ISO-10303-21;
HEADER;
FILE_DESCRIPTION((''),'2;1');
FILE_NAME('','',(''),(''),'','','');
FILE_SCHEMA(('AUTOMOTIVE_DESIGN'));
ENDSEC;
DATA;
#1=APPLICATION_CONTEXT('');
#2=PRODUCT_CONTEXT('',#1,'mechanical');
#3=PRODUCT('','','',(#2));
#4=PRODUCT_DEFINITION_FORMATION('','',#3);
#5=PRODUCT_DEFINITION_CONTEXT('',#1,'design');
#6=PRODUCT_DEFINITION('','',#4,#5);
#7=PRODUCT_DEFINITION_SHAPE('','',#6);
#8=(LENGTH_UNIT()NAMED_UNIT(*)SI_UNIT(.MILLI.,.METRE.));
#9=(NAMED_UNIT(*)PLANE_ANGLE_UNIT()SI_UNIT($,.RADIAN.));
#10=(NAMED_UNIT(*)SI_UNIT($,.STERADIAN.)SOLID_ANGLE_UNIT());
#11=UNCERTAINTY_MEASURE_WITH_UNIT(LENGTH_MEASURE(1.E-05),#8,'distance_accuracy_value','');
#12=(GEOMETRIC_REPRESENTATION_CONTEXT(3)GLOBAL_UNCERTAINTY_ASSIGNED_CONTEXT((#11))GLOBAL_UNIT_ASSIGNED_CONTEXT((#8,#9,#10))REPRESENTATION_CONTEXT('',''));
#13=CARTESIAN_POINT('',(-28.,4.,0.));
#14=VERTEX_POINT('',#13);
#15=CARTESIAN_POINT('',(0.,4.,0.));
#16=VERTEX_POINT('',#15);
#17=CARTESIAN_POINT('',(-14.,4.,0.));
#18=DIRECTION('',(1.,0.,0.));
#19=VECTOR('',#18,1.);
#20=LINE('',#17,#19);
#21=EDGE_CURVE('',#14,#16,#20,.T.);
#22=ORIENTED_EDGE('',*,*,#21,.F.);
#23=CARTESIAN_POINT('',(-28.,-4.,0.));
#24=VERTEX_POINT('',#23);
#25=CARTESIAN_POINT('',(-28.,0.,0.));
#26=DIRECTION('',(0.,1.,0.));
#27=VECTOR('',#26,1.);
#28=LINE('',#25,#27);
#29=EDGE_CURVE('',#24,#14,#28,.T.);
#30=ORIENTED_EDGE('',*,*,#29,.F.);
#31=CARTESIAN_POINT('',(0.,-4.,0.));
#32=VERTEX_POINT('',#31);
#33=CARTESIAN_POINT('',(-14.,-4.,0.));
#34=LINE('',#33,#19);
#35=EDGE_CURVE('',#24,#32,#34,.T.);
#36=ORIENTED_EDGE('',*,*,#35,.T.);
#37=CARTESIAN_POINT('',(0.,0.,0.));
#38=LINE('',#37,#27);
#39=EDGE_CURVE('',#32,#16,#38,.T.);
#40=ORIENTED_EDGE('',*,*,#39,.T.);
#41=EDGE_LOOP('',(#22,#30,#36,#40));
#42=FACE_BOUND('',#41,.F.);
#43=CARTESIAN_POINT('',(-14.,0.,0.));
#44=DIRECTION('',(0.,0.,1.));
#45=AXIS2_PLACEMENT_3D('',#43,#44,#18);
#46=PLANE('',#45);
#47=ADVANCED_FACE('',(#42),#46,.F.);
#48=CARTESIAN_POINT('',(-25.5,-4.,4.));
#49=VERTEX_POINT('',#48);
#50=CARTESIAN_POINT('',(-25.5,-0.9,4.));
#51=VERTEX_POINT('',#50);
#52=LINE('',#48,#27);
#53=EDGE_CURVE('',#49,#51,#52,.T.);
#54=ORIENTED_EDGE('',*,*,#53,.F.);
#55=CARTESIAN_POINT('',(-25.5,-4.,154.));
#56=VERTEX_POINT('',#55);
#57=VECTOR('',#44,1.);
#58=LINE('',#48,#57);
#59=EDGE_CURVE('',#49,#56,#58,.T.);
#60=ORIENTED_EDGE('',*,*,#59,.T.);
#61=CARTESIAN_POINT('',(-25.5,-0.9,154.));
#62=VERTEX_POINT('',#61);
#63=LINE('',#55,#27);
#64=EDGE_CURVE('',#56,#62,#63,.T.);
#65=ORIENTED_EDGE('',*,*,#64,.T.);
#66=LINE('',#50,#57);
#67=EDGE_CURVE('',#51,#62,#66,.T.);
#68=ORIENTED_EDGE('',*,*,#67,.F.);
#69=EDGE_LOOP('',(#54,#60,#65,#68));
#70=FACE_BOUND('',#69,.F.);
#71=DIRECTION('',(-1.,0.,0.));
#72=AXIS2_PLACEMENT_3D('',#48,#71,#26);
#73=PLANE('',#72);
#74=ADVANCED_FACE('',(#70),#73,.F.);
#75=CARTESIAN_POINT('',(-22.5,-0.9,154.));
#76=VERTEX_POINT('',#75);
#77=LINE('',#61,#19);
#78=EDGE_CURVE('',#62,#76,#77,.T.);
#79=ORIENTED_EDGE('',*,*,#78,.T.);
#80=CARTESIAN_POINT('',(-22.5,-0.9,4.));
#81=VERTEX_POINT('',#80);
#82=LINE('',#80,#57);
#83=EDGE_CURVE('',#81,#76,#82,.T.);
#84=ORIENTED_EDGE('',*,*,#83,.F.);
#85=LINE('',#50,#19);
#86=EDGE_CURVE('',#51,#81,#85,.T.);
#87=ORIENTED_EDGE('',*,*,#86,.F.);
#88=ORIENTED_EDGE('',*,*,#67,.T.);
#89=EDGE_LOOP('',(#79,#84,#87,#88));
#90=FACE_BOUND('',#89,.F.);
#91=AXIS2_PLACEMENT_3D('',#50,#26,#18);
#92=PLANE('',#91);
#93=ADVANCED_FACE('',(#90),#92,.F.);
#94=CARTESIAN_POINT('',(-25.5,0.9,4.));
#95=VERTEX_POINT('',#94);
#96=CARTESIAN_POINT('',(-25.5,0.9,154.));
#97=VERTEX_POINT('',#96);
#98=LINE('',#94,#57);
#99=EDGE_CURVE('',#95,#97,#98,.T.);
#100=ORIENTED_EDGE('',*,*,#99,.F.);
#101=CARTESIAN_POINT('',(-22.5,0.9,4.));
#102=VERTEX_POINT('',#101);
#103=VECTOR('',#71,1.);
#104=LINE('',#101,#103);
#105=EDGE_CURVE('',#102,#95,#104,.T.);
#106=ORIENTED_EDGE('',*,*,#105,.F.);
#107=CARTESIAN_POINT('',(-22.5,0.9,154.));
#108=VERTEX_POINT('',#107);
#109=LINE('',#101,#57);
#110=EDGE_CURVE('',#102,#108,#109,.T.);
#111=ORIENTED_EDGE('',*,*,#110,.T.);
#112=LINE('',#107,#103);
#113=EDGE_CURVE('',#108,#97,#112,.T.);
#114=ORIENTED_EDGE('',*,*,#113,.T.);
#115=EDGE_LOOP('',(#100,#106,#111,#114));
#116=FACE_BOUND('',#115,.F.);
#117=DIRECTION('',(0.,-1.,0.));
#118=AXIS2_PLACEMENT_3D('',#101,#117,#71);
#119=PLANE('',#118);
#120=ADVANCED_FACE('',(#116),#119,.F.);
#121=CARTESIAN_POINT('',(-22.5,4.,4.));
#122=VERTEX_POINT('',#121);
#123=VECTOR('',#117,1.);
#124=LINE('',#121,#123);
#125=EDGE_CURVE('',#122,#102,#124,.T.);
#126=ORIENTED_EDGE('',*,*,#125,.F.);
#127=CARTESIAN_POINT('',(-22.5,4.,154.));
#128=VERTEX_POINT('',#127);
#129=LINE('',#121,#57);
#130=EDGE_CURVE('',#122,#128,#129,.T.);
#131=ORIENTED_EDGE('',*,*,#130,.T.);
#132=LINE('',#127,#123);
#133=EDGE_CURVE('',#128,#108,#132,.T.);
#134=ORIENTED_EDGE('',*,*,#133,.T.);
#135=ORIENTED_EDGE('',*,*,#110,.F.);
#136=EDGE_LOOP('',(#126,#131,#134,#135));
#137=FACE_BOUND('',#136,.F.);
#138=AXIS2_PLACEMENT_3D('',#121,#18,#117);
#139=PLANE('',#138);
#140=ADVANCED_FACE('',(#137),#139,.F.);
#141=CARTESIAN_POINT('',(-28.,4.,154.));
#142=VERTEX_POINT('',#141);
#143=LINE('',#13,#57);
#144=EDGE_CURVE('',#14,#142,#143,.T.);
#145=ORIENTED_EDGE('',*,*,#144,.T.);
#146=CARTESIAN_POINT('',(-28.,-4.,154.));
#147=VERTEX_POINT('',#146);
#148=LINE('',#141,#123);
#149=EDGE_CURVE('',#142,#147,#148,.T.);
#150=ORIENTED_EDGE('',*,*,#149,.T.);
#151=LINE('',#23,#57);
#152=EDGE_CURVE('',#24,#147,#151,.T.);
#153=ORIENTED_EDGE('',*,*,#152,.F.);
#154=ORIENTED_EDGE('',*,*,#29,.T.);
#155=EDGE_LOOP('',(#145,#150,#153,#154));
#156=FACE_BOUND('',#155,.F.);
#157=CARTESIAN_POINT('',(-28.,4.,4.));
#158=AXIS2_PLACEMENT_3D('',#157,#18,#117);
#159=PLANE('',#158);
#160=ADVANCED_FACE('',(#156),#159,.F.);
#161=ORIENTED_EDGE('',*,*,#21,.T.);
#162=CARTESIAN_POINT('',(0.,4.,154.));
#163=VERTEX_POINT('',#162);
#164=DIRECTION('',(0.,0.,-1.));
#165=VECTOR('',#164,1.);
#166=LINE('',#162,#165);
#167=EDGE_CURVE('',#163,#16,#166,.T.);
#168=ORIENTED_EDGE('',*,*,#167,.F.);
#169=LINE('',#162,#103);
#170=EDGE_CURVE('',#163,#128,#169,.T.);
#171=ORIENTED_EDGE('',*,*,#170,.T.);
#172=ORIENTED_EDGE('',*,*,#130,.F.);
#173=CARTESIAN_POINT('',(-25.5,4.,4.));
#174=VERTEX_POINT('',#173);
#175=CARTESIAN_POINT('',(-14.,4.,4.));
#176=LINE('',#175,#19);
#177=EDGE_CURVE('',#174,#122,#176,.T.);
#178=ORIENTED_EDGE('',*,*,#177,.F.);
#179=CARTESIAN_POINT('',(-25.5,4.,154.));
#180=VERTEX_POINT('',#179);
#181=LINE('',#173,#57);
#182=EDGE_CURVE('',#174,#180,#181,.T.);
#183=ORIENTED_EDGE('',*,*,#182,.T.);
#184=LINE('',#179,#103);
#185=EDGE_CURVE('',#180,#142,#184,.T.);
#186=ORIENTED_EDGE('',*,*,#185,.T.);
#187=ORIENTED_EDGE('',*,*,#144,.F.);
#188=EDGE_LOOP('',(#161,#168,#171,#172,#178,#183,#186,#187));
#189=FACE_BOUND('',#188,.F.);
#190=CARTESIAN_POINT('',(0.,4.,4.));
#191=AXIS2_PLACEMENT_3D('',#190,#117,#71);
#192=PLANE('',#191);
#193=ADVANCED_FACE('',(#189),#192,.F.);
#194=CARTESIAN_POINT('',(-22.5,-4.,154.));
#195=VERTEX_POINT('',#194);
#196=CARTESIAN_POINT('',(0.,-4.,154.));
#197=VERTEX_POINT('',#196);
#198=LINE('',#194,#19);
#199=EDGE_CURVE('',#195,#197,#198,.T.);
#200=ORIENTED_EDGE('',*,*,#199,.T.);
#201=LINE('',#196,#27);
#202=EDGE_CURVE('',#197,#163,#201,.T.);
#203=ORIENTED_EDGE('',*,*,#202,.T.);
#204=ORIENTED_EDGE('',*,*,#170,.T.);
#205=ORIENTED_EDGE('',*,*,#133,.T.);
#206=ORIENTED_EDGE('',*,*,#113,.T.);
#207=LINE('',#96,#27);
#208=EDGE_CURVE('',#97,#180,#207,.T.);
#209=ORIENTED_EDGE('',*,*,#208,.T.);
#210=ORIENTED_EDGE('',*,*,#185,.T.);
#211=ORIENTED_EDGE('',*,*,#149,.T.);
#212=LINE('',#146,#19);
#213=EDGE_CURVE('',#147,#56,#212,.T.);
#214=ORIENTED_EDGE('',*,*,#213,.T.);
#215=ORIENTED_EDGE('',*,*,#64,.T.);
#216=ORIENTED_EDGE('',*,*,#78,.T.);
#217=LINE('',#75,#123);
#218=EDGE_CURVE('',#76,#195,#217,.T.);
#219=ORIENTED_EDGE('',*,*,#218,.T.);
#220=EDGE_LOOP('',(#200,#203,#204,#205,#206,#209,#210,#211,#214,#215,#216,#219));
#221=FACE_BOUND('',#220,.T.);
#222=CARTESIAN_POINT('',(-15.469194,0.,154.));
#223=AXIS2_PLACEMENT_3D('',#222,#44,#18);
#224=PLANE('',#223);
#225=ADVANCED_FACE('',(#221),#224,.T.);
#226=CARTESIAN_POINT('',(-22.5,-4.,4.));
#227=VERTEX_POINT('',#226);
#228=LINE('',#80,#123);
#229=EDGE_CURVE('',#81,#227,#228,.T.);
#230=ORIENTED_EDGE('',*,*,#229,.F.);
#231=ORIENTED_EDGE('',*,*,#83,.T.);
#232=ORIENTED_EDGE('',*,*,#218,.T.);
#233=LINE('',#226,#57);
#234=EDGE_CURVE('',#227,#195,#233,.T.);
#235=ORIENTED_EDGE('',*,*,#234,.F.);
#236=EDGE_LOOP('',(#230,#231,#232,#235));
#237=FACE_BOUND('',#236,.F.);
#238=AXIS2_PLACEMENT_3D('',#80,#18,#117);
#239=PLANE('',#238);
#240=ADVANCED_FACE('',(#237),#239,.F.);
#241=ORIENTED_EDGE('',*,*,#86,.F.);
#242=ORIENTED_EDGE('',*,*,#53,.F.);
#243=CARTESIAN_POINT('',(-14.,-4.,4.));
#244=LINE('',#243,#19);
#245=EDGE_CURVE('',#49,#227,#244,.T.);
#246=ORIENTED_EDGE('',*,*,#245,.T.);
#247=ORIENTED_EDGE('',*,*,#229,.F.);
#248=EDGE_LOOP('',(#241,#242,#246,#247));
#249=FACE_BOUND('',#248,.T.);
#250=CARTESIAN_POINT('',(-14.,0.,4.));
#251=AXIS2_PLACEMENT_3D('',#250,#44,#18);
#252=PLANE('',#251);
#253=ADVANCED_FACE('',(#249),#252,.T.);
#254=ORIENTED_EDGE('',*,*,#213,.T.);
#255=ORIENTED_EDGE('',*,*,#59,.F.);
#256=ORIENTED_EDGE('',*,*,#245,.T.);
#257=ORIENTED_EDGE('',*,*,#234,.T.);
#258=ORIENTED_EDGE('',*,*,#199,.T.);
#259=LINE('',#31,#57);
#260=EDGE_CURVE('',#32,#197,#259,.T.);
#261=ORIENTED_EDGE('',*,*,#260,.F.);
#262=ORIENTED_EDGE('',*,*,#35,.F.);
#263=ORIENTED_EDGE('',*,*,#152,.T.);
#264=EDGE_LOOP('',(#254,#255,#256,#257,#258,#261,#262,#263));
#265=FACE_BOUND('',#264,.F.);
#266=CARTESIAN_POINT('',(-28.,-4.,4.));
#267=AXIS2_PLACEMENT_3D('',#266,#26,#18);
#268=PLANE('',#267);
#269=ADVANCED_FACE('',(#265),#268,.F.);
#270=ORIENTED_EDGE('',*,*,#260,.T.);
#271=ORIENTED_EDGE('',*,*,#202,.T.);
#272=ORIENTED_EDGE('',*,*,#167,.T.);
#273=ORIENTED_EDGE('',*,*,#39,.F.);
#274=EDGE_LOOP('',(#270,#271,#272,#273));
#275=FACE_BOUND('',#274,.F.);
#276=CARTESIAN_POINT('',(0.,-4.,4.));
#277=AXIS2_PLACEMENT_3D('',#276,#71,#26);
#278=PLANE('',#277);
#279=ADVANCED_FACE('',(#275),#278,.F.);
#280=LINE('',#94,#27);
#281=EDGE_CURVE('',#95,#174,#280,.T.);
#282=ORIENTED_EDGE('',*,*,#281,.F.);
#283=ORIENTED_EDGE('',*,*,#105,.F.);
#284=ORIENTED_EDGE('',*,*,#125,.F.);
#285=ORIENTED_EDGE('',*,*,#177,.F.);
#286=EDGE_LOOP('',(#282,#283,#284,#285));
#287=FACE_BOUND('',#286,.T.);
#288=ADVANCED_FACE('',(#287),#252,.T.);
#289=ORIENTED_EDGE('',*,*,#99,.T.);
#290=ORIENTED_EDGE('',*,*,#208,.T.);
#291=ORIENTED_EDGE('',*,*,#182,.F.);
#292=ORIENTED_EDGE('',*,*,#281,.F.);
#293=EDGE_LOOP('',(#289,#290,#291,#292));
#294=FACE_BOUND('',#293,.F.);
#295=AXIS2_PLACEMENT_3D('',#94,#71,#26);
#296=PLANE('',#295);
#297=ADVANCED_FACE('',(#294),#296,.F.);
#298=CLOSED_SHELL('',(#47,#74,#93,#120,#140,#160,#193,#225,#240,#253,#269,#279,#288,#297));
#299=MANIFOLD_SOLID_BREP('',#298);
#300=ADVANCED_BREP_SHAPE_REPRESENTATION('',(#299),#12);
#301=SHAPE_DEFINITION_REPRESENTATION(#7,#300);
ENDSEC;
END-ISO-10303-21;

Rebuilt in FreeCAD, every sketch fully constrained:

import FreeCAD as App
import Part
import Sketcher

V = App.Vector
Q = App.Units.Quantity

doc = App.newDocument("Part")
body = doc.addObject("PartDesign::Body", "Body")

sketch1 = doc.addObject("Sketcher::SketchObject", "Sketch")
body.addObject(sketch1)
sketch1.AttachmentSupport = (doc.XY_Plane, [""])
sketch1.MapMode = "FlatFace"
sketch1.addGeometry([
    Part.LineSegment(V(-28, 4, 0), V(-28, -4, 0)),
    Part.LineSegment(V(-28, -4, 0), V(0, -4, 0)),
    Part.LineSegment(V(0, -4, 0), V(0, 4, 0)),
    Part.LineSegment(V(0, 4, 0), V(-28, 4, 0)),
], False)
sketch1.addConstraint([
    Sketcher.Constraint("Coincident", 0, 2, 1, 1),
    Sketcher.Constraint("Coincident", 1, 2, 2, 1),
    Sketcher.Constraint("Coincident", 2, 2, 3, 1),
    Sketcher.Constraint("Coincident", 3, 2, 0, 1),
    Sketcher.Constraint("Vertical", 0),
    Sketcher.Constraint("Horizontal", 1),
    Sketcher.Constraint("Vertical", 2),
    Sketcher.Constraint("Horizontal", 3),
    Sketcher.Constraint("Symmetric", 1, 2, 2, 2, -1, 1),
    Sketcher.Constraint("DistanceX", 1, 1, 1, 2, Q("28 mm")),
    Sketcher.Constraint("DistanceY", 0, 2, 0, 1, Q("8 mm")),
])
pad1 = doc.addObject("PartDesign::Pad", "Pad")
body.addObject(pad1)
pad1.Profile = sketch1
pad1.Length = 4

sketch2 = doc.addObject("Sketcher::SketchObject", "Sketch001")
body.addObject(sketch2)
sketch2.AttachmentSupport = (doc.XY_Plane, [""])
sketch2.MapMode = "FlatFace"
sketch2.AttachmentOffset = App.Placement(V(0, 0, 4), App.Rotation())
sketch2.addGeometry([
    Part.LineSegment(V(-22.5, 0.9, 0), V(-25.5, 0.9, 0)),
    Part.LineSegment(V(-25.5, 0.9, 0), V(-25.5, 4, 0)),
    Part.LineSegment(V(-25.5, 4, 0), V(-28, 4, 0)),
    Part.LineSegment(V(-28, 4, 0), V(-28, -4, 0)),
    Part.LineSegment(V(-28, -4, 0), V(-25.5, -4, 0)),
    Part.LineSegment(V(-25.5, -4, 0), V(-25.5, -0.9, 0)),
    Part.LineSegment(V(-25.5, -0.9, 0), V(-22.5, -0.9, 0)),
    Part.LineSegment(V(-22.5, -0.9, 0), V(-22.5, -4, 0)),
    Part.LineSegment(V(-22.5, -4, 0), V(0, -4, 0)),
    Part.LineSegment(V(0, -4, 0), V(0, 4, 0)),
    Part.LineSegment(V(0, 4, 0), V(-22.5, 4, 0)),
    Part.LineSegment(V(-22.5, 4, 0), V(-22.5, 0.9, 0)),
], False)
sketch2.addConstraint([
    Sketcher.Constraint("Coincident", 0, 2, 1, 1),
    Sketcher.Constraint("Coincident", 1, 2, 2, 1),
    Sketcher.Constraint("Coincident", 2, 2, 3, 1),
    Sketcher.Constraint("Coincident", 3, 2, 4, 1),
    Sketcher.Constraint("Coincident", 4, 2, 5, 1),
    Sketcher.Constraint("Coincident", 5, 2, 6, 1),
    Sketcher.Constraint("Coincident", 6, 2, 7, 1),
    Sketcher.Constraint("Coincident", 7, 2, 8, 1),
    Sketcher.Constraint("Coincident", 8, 2, 9, 1),
    Sketcher.Constraint("Coincident", 9, 2, 10, 1),
    Sketcher.Constraint("Coincident", 10, 2, 11, 1),
    Sketcher.Constraint("Coincident", 11, 2, 0, 1),
    Sketcher.Constraint("Horizontal", 0),
    Sketcher.Constraint("Vertical", 1),
    Sketcher.Constraint("Horizontal", 2),
    Sketcher.Constraint("Vertical", 3),
    Sketcher.Constraint("Horizontal", 4),
    Sketcher.Constraint("Vertical", 5),
    Sketcher.Constraint("Horizontal", 6),
    Sketcher.Constraint("Vertical", 7),
    Sketcher.Constraint("Horizontal", 8),
    Sketcher.Constraint("Vertical", 9),
    Sketcher.Constraint("Horizontal", 10),
    Sketcher.Constraint("Vertical", 11),
    Sketcher.Constraint("Symmetric", 8, 2, 9, 2, -1, 1),
    Sketcher.Constraint("Symmetric", 1, 2, 4, 2, -1),
    Sketcher.Constraint("Symmetric", 6, 2, 11, 2, -1),
    Sketcher.Constraint("Horizontal", 4, 2, 7, 2),
    Sketcher.Constraint("DistanceX", 0, 2, 0, 1, Q("3 mm")),
    Sketcher.Constraint("DistanceY", 3, 2, 3, 1, Q("8 mm")),
    Sketcher.Constraint("DistanceX", 2, 2, 2, 1, Q("2.5 mm")),
    Sketcher.Constraint("DistanceX", 8, 1, 8, 2, Q("22.5 mm")),
    Sketcher.Constraint("DistanceY", 1, 1, 1, 2, Q("3.1 mm")),
])
pad2 = doc.addObject("PartDesign::Pad", "Pad001")
body.addObject(pad2)
pad2.Profile = sketch2
pad2.Length = 150

doc.recompute()
